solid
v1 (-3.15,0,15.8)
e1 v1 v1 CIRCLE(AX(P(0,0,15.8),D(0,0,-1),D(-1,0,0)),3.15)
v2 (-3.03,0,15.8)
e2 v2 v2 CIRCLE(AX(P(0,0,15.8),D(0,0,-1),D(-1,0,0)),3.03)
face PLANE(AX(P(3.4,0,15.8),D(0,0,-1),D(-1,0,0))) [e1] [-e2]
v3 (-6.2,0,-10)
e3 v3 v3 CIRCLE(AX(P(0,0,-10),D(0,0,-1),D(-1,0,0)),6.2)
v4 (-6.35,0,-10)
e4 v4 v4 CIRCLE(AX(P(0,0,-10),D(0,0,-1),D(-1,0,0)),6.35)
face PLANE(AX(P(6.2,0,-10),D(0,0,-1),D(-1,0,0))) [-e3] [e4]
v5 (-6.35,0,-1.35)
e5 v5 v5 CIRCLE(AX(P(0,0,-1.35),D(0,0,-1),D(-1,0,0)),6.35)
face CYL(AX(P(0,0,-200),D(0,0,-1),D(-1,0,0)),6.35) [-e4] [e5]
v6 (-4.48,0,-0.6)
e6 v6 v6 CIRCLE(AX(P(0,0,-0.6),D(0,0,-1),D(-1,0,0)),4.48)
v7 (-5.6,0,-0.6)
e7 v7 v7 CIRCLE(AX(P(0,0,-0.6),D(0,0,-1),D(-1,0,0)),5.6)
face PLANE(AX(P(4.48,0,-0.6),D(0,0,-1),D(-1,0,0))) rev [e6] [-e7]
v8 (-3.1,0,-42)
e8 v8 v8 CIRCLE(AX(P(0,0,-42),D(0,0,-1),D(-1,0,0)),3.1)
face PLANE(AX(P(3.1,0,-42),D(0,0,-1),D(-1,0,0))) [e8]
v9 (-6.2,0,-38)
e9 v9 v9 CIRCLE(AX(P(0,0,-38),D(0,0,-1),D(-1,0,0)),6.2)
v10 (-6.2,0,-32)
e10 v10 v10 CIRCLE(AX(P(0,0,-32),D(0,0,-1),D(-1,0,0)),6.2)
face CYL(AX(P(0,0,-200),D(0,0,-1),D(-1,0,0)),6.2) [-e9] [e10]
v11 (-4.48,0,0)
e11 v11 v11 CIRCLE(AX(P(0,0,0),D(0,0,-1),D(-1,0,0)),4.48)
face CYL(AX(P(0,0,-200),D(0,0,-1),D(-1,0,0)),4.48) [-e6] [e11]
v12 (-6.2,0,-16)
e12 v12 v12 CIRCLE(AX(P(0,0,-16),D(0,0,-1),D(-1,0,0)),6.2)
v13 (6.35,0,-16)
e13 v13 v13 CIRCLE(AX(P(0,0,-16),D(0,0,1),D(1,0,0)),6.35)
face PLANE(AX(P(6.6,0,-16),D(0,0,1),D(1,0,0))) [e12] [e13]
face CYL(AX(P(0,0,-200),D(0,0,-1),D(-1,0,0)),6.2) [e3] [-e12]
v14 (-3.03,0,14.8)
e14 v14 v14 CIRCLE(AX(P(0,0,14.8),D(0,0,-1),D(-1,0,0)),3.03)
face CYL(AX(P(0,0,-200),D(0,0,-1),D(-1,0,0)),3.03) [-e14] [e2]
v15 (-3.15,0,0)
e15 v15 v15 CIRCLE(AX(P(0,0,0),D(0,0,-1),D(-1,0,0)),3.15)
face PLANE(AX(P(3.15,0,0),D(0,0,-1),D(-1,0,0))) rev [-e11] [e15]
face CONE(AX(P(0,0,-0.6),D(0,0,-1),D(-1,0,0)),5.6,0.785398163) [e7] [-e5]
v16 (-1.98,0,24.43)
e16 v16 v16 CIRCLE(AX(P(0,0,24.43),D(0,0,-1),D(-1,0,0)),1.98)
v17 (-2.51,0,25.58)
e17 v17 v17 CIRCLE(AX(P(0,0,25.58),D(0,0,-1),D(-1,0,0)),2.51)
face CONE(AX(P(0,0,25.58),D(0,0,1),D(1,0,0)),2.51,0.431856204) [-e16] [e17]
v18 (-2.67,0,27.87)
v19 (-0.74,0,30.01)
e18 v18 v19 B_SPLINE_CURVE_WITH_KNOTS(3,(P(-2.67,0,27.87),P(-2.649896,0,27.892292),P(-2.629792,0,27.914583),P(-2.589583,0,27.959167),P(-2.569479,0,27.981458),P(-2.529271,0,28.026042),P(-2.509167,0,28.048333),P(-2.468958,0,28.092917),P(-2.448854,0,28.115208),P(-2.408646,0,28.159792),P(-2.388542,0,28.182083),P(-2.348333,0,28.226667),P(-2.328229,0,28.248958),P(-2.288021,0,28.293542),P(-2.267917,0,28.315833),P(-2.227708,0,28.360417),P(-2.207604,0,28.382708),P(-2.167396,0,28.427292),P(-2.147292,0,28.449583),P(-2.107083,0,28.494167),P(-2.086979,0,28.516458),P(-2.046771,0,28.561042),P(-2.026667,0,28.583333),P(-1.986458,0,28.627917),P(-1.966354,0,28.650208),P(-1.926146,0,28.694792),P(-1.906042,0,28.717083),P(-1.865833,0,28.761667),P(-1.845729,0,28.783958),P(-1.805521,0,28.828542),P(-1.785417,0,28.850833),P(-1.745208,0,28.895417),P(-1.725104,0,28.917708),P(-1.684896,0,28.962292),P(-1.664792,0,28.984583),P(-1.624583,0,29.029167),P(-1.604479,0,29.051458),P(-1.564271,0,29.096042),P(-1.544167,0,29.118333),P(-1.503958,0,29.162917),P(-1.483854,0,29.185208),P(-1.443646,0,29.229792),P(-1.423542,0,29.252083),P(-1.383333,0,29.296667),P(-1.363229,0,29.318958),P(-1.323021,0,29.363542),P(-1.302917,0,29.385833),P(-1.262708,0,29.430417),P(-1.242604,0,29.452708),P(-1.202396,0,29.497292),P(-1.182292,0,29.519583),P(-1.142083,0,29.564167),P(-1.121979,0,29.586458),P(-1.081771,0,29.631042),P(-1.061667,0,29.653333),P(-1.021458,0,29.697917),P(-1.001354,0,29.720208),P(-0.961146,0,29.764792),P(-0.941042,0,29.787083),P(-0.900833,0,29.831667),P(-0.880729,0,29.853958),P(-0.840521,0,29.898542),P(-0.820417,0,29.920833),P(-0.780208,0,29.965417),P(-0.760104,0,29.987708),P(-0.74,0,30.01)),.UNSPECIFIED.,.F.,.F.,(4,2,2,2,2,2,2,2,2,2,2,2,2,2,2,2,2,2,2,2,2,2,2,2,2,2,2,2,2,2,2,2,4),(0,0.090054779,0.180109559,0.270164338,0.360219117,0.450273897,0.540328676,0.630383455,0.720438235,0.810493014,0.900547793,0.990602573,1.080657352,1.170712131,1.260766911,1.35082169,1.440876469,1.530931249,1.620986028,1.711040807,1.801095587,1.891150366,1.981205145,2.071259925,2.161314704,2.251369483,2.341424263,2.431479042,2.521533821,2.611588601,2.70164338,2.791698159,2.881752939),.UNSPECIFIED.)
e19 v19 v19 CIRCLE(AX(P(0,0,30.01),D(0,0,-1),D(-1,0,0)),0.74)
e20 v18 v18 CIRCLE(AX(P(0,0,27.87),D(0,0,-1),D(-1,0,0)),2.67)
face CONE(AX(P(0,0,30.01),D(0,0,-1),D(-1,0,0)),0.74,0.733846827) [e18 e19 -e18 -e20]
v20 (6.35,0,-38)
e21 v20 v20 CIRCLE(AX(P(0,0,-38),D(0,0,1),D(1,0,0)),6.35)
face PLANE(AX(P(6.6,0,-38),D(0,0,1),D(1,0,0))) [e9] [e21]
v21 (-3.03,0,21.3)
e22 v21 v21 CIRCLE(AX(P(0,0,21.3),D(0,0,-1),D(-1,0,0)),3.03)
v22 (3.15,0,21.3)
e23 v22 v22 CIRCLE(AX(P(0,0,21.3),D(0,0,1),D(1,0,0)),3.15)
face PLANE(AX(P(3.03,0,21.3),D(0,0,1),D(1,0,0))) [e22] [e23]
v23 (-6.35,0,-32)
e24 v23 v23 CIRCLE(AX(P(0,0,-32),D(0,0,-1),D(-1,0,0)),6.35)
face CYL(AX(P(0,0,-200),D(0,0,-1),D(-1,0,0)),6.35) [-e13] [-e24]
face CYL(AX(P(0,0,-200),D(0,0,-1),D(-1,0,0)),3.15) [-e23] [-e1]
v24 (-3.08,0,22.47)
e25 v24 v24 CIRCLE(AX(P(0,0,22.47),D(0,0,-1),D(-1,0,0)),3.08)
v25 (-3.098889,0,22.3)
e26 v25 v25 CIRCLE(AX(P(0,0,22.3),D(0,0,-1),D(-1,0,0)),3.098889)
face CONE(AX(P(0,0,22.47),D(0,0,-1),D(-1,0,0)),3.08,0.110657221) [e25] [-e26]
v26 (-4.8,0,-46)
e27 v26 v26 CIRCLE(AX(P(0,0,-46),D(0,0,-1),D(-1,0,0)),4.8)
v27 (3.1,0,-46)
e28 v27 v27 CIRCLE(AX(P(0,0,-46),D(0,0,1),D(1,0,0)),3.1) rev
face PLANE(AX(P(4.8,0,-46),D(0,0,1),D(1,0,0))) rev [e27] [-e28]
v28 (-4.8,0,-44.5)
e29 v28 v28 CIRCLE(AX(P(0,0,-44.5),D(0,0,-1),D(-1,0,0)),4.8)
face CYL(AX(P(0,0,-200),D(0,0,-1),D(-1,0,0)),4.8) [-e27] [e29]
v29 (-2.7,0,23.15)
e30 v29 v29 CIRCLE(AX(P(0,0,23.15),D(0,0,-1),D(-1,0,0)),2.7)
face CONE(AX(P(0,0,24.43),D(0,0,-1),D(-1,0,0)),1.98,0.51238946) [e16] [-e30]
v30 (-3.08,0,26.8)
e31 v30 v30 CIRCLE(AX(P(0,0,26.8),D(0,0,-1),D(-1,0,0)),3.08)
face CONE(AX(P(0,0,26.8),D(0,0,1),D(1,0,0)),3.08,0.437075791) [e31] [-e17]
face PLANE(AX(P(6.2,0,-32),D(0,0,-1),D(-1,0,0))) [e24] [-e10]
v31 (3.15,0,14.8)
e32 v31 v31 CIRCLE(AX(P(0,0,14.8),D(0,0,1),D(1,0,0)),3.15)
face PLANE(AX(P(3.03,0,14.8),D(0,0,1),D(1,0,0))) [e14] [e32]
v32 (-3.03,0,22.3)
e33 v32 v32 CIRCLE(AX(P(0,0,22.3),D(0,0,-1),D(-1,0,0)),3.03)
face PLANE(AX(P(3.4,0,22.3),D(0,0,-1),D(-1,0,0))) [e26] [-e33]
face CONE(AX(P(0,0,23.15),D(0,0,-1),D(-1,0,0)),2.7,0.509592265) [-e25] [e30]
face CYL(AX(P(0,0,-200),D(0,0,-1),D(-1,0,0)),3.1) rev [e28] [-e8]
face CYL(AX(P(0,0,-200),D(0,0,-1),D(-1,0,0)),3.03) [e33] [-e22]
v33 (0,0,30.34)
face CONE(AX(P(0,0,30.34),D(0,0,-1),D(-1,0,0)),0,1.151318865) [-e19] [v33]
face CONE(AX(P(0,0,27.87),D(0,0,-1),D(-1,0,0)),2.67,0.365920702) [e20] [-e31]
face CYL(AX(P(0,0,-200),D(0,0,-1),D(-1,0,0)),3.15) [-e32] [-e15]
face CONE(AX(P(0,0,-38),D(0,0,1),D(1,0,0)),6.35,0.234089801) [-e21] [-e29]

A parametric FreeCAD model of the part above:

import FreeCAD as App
import Part
import Sketcher

V = App.Vector
Q = App.Units.Quantity


def add_polygon(sketch, points):
    """Adds a closed chain of lines whose ends are joined by coincident constraints."""
    first, n = sketch.GeometryCount, len(points)
    for a, b in zip(points, points[1:] + points[:1]):
        sketch.addGeometry(Part.LineSegment(App.Vector(*a, 0), App.Vector(*b, 0)), False)
    for i in range(n):
        sketch.addConstraint(Sketcher.Constraint("Coincident", first + i, 2, first + (i + 1) % n, 1))

doc = App.newDocument("Part")
body = doc.addObject("PartDesign::Body", "Body")

sketch1 = body.newObject("Sketcher::SketchObject", "Sketch")
sketch1.AttachmentSupport = (doc.getObject("XZ_Plane"), [""])
sketch1.MapMode = "FlatFace"
add_polygon(sketch1, [(0, 30.3), (0.7, 30), (2.7, 27.9), (3.1, 26.8), (2.5, 25.6), (2, 24.4), (2.7, 23.1), (3.1, 22.5), (3.1, 21.8), (3.1, 0), (4.5, 0), (4.5, -0.6), (5.6, -0.6), (6.3, -1.4), (6.3, -38), (4.8, -44.5), (4.8, -46), (0, -46)])
sketch1.addConstraint([
    Sketcher.Constraint("Vertical", 8),
    Sketcher.Constraint("Horizontal", 9),
    Sketcher.Constraint("Vertical", 10),
    Sketcher.Constraint("Horizontal", 11),
    Sketcher.Constraint("Vertical", 13),
    Sketcher.Constraint("Vertical", 15),
    Sketcher.Constraint("Horizontal", 16),
    Sketcher.Constraint("Vertical", 17),
    Sketcher.Constraint("PointOnObject", 8, 2, -1),
    Sketcher.Constraint("PointOnObject", 16, 2, -2),
    Sketcher.Constraint("Vertical", 2, 2, 6, 2),
    Sketcher.Constraint("Angle", 12, Q("-45 deg")),
    Sketcher.Constraint("DistanceX", 16, 2, 16, 1, 4.8),
    Sketcher.Constraint("DistanceY", 10, 2, 10, 1, 0.6),
    Sketcher.Constraint("DistanceY", 15, 2, 15, 1, 1.5),
    Sketcher.Constraint("DistanceY", 13, 2, -1, 1, 38.0),
    Sketcher.Constraint("DistanceY", 15, 2, -1, 1, 46.0),
    Sketcher.Constraint("DistanceX", 9, 1, 9, 2, 1.33),
    Sketcher.Constraint("DistanceX", 11, 1, 11, 2, 1.12),
    Sketcher.Constraint("DistanceY", 8, 2, 8, 1, 21.84),
    Sketcher.Constraint("DistanceY", 13, 2, 13, 1, 36.65),
    Sketcher.Constraint("DistanceY", 17, 1, 17, 2, 76.34),
    Sketcher.Constraint("DistanceY", -1, 1, 2, 2, 26.8),
    Sketcher.Constraint("DistanceX", -1, 1, 5, 2, 2.7),
    Sketcher.Constraint("DistanceX", -1, 1, 11, 2, 5.6),
    Sketcher.Constraint("DistanceX", 4, 2, 2, 2, 1.1),
    Sketcher.Constraint("DistanceY", 6, 2, 1, 2, 5.4),
    Sketcher.Constraint("DistanceX", 6, 2, 9, 2, 1.4),
    Sketcher.Constraint("DistanceX", -1, 1, 0, 2, 0.74),
    Sketcher.Constraint("DistanceY", -1, 1, 0, 2, 30.01),
    Sketcher.Constraint("DistanceX", -1, 1, 1, 2, 2.67),
    Sketcher.Constraint("DistanceY", -1, 1, 1, 2, 27.87),
    Sketcher.Constraint("DistanceX", -1, 1, 3, 2, 2.51),
    Sketcher.Constraint("DistanceY", -1, 1, 3, 2, 25.58),
    Sketcher.Constraint("DistanceY", -1, 1, 4, 2, 24.43),
    Sketcher.Constraint("DistanceY", -1, 1, 5, 2, 23.15),
])
revolution = body.newObject("PartDesign::Revolution", "Revolution")
revolution.Profile = sketch1
revolution.ReferenceAxis = (sketch1, ["V_Axis"])
revolution.Angle = 360

sketch2 = body.newObject("Sketcher::SketchObject", "Sketch001")
sketch2.AttachmentSupport = (doc.getObject("XZ_Plane"), [""])
sketch2.MapMode = "FlatFace"
add_polygon(sketch2, [(3.4, 22.3), (3.4, 21.3), (3.03, 21.3), (3.03, 22.3)])
add_polygon(sketch2, [(3.4, 15.8), (3.4, 14.8), (3.03, 14.8), (3.03, 15.8)])
sketch2.addConstraint([
    Sketcher.Constraint("Vertical", 0),
    Sketcher.Constraint("Horizontal", 1),
    Sketcher.Constraint("Vertical", 2),
    Sketcher.Constraint("Horizontal", 3),
    Sketcher.Constraint("Vertical", 4),
    Sketcher.Constraint("Horizontal", 5),
    Sketcher.Constraint("Vertical", 6),
    Sketcher.Constraint("Horizontal", 7),
    Sketcher.Constraint("Vertical", 3, 2, 4, 2),
    Sketcher.Constraint("Vertical", 2, 2, 5, 2),
    Sketcher.Constraint("Equal", 2, 4),
    Sketcher.Constraint("DistanceY", 0, 2, 0, 1, 1.0),
    Sketcher.Constraint("DistanceX", 1, 2, 1, 1, 0.37),
    Sketcher.Constraint("DistanceX", -1, 1, 0, 2, 3.4),
    Sketcher.Constraint("DistanceY", -1, 1, 0, 2, 21.3),
    Sketcher.Constraint("DistanceY", -1, 1, 4, 2, 14.8),
])
groove = body.newObject("PartDesign::Groove", "Groove")
groove.Profile = sketch2
groove.ReferenceAxis = (sketch2, ["V_Axis"])
groove.Angle = 360

sketch3 = body.newObject("Sketcher::SketchObject", "Sketch002")
sketch3.AttachmentSupport = (doc.getObject("XZ_Plane"), [""])
sketch3.MapMode = "FlatFace"
add_polygon(sketch3, [(6.6, -10), (6.6, -16), (6.2, -16), (6.2, -10)])
add_polygon(sketch3, [(6.6, -32), (6.6, -38), (6.2, -38), (6.2, -32)])
sketch3.addConstraint([
    Sketcher.Constraint("Vertical", 0),
    Sketcher.Constraint("Horizontal", 1),
    Sketcher.Constraint("Vertical", 2),
    Sketcher.Constraint("Horizontal", 3),
    Sketcher.Constraint("Vertical", 4),
    Sketcher.Constraint("Horizontal", 5),
    Sketcher.Constraint("Vertical", 6),
    Sketcher.Constraint("Horizontal", 7),
    Sketcher.Constraint("Vertical", 3, 2, 4, 2),
    Sketcher.Constraint("Vertical", 2, 2, 5, 2),
    Sketcher.Constraint("Equal", 2, 4),
    Sketcher.Constraint("DistanceY", 0, 2, 0, 1, 6.0),
    Sketcher.Constraint("DistanceX", 1, 2, 1, 1, 0.4),
    Sketcher.Constraint("DistanceY", 0, 2, -1, 1, 16.0),
    Sketcher.Constraint("DistanceY", 4, 2, -1, 1, 38.0),
    Sketcher.Constraint("DistanceX", -1, 1, 0, 2, 6.6),
])
groove2 = body.newObject("PartDesign::Groove", "Groove001")
groove2.Profile = sketch3
groove2.ReferenceAxis = (sketch3, ["V_Axis"])
groove2.Angle = 360

sketch4 = body.newObject("Sketcher::SketchObject", "Sketch003")
sketch4.AttachmentSupport = (doc.getObject("XZ_Plane"), [""])
sketch4.MapMode = "FlatFace"
add_polygon(sketch4, [(3.1, -42), (3.1, -46.5), (0, -46.5), (0, -42)])
sketch4.addConstraint([
    Sketcher.Constraint("Vertical", 0),
    Sketcher.Constraint("Horizontal", 1),
    Sketcher.Constraint("Vertical", 2),
    Sketcher.Constraint("Horizontal", 3),
    Sketcher.Constraint("PointOnObject", 1, 2, -2),
    Sketcher.Constraint("DistanceX", 1, 2, 1, 1, 3.1),
    Sketcher.Constraint("DistanceY", 0, 2, 0, 1, 4.5),
    Sketcher.Constraint("DistanceY", 2, 2, -1, 1, 42.0),
])
groove3 = body.newObject("PartDesign::Groove", "Groove002")
groove3.Profile = sketch4
groove3.ReferenceAxis = (sketch4, ["V_Axis"])
groove3.Angle = 360

doc.recompute()
